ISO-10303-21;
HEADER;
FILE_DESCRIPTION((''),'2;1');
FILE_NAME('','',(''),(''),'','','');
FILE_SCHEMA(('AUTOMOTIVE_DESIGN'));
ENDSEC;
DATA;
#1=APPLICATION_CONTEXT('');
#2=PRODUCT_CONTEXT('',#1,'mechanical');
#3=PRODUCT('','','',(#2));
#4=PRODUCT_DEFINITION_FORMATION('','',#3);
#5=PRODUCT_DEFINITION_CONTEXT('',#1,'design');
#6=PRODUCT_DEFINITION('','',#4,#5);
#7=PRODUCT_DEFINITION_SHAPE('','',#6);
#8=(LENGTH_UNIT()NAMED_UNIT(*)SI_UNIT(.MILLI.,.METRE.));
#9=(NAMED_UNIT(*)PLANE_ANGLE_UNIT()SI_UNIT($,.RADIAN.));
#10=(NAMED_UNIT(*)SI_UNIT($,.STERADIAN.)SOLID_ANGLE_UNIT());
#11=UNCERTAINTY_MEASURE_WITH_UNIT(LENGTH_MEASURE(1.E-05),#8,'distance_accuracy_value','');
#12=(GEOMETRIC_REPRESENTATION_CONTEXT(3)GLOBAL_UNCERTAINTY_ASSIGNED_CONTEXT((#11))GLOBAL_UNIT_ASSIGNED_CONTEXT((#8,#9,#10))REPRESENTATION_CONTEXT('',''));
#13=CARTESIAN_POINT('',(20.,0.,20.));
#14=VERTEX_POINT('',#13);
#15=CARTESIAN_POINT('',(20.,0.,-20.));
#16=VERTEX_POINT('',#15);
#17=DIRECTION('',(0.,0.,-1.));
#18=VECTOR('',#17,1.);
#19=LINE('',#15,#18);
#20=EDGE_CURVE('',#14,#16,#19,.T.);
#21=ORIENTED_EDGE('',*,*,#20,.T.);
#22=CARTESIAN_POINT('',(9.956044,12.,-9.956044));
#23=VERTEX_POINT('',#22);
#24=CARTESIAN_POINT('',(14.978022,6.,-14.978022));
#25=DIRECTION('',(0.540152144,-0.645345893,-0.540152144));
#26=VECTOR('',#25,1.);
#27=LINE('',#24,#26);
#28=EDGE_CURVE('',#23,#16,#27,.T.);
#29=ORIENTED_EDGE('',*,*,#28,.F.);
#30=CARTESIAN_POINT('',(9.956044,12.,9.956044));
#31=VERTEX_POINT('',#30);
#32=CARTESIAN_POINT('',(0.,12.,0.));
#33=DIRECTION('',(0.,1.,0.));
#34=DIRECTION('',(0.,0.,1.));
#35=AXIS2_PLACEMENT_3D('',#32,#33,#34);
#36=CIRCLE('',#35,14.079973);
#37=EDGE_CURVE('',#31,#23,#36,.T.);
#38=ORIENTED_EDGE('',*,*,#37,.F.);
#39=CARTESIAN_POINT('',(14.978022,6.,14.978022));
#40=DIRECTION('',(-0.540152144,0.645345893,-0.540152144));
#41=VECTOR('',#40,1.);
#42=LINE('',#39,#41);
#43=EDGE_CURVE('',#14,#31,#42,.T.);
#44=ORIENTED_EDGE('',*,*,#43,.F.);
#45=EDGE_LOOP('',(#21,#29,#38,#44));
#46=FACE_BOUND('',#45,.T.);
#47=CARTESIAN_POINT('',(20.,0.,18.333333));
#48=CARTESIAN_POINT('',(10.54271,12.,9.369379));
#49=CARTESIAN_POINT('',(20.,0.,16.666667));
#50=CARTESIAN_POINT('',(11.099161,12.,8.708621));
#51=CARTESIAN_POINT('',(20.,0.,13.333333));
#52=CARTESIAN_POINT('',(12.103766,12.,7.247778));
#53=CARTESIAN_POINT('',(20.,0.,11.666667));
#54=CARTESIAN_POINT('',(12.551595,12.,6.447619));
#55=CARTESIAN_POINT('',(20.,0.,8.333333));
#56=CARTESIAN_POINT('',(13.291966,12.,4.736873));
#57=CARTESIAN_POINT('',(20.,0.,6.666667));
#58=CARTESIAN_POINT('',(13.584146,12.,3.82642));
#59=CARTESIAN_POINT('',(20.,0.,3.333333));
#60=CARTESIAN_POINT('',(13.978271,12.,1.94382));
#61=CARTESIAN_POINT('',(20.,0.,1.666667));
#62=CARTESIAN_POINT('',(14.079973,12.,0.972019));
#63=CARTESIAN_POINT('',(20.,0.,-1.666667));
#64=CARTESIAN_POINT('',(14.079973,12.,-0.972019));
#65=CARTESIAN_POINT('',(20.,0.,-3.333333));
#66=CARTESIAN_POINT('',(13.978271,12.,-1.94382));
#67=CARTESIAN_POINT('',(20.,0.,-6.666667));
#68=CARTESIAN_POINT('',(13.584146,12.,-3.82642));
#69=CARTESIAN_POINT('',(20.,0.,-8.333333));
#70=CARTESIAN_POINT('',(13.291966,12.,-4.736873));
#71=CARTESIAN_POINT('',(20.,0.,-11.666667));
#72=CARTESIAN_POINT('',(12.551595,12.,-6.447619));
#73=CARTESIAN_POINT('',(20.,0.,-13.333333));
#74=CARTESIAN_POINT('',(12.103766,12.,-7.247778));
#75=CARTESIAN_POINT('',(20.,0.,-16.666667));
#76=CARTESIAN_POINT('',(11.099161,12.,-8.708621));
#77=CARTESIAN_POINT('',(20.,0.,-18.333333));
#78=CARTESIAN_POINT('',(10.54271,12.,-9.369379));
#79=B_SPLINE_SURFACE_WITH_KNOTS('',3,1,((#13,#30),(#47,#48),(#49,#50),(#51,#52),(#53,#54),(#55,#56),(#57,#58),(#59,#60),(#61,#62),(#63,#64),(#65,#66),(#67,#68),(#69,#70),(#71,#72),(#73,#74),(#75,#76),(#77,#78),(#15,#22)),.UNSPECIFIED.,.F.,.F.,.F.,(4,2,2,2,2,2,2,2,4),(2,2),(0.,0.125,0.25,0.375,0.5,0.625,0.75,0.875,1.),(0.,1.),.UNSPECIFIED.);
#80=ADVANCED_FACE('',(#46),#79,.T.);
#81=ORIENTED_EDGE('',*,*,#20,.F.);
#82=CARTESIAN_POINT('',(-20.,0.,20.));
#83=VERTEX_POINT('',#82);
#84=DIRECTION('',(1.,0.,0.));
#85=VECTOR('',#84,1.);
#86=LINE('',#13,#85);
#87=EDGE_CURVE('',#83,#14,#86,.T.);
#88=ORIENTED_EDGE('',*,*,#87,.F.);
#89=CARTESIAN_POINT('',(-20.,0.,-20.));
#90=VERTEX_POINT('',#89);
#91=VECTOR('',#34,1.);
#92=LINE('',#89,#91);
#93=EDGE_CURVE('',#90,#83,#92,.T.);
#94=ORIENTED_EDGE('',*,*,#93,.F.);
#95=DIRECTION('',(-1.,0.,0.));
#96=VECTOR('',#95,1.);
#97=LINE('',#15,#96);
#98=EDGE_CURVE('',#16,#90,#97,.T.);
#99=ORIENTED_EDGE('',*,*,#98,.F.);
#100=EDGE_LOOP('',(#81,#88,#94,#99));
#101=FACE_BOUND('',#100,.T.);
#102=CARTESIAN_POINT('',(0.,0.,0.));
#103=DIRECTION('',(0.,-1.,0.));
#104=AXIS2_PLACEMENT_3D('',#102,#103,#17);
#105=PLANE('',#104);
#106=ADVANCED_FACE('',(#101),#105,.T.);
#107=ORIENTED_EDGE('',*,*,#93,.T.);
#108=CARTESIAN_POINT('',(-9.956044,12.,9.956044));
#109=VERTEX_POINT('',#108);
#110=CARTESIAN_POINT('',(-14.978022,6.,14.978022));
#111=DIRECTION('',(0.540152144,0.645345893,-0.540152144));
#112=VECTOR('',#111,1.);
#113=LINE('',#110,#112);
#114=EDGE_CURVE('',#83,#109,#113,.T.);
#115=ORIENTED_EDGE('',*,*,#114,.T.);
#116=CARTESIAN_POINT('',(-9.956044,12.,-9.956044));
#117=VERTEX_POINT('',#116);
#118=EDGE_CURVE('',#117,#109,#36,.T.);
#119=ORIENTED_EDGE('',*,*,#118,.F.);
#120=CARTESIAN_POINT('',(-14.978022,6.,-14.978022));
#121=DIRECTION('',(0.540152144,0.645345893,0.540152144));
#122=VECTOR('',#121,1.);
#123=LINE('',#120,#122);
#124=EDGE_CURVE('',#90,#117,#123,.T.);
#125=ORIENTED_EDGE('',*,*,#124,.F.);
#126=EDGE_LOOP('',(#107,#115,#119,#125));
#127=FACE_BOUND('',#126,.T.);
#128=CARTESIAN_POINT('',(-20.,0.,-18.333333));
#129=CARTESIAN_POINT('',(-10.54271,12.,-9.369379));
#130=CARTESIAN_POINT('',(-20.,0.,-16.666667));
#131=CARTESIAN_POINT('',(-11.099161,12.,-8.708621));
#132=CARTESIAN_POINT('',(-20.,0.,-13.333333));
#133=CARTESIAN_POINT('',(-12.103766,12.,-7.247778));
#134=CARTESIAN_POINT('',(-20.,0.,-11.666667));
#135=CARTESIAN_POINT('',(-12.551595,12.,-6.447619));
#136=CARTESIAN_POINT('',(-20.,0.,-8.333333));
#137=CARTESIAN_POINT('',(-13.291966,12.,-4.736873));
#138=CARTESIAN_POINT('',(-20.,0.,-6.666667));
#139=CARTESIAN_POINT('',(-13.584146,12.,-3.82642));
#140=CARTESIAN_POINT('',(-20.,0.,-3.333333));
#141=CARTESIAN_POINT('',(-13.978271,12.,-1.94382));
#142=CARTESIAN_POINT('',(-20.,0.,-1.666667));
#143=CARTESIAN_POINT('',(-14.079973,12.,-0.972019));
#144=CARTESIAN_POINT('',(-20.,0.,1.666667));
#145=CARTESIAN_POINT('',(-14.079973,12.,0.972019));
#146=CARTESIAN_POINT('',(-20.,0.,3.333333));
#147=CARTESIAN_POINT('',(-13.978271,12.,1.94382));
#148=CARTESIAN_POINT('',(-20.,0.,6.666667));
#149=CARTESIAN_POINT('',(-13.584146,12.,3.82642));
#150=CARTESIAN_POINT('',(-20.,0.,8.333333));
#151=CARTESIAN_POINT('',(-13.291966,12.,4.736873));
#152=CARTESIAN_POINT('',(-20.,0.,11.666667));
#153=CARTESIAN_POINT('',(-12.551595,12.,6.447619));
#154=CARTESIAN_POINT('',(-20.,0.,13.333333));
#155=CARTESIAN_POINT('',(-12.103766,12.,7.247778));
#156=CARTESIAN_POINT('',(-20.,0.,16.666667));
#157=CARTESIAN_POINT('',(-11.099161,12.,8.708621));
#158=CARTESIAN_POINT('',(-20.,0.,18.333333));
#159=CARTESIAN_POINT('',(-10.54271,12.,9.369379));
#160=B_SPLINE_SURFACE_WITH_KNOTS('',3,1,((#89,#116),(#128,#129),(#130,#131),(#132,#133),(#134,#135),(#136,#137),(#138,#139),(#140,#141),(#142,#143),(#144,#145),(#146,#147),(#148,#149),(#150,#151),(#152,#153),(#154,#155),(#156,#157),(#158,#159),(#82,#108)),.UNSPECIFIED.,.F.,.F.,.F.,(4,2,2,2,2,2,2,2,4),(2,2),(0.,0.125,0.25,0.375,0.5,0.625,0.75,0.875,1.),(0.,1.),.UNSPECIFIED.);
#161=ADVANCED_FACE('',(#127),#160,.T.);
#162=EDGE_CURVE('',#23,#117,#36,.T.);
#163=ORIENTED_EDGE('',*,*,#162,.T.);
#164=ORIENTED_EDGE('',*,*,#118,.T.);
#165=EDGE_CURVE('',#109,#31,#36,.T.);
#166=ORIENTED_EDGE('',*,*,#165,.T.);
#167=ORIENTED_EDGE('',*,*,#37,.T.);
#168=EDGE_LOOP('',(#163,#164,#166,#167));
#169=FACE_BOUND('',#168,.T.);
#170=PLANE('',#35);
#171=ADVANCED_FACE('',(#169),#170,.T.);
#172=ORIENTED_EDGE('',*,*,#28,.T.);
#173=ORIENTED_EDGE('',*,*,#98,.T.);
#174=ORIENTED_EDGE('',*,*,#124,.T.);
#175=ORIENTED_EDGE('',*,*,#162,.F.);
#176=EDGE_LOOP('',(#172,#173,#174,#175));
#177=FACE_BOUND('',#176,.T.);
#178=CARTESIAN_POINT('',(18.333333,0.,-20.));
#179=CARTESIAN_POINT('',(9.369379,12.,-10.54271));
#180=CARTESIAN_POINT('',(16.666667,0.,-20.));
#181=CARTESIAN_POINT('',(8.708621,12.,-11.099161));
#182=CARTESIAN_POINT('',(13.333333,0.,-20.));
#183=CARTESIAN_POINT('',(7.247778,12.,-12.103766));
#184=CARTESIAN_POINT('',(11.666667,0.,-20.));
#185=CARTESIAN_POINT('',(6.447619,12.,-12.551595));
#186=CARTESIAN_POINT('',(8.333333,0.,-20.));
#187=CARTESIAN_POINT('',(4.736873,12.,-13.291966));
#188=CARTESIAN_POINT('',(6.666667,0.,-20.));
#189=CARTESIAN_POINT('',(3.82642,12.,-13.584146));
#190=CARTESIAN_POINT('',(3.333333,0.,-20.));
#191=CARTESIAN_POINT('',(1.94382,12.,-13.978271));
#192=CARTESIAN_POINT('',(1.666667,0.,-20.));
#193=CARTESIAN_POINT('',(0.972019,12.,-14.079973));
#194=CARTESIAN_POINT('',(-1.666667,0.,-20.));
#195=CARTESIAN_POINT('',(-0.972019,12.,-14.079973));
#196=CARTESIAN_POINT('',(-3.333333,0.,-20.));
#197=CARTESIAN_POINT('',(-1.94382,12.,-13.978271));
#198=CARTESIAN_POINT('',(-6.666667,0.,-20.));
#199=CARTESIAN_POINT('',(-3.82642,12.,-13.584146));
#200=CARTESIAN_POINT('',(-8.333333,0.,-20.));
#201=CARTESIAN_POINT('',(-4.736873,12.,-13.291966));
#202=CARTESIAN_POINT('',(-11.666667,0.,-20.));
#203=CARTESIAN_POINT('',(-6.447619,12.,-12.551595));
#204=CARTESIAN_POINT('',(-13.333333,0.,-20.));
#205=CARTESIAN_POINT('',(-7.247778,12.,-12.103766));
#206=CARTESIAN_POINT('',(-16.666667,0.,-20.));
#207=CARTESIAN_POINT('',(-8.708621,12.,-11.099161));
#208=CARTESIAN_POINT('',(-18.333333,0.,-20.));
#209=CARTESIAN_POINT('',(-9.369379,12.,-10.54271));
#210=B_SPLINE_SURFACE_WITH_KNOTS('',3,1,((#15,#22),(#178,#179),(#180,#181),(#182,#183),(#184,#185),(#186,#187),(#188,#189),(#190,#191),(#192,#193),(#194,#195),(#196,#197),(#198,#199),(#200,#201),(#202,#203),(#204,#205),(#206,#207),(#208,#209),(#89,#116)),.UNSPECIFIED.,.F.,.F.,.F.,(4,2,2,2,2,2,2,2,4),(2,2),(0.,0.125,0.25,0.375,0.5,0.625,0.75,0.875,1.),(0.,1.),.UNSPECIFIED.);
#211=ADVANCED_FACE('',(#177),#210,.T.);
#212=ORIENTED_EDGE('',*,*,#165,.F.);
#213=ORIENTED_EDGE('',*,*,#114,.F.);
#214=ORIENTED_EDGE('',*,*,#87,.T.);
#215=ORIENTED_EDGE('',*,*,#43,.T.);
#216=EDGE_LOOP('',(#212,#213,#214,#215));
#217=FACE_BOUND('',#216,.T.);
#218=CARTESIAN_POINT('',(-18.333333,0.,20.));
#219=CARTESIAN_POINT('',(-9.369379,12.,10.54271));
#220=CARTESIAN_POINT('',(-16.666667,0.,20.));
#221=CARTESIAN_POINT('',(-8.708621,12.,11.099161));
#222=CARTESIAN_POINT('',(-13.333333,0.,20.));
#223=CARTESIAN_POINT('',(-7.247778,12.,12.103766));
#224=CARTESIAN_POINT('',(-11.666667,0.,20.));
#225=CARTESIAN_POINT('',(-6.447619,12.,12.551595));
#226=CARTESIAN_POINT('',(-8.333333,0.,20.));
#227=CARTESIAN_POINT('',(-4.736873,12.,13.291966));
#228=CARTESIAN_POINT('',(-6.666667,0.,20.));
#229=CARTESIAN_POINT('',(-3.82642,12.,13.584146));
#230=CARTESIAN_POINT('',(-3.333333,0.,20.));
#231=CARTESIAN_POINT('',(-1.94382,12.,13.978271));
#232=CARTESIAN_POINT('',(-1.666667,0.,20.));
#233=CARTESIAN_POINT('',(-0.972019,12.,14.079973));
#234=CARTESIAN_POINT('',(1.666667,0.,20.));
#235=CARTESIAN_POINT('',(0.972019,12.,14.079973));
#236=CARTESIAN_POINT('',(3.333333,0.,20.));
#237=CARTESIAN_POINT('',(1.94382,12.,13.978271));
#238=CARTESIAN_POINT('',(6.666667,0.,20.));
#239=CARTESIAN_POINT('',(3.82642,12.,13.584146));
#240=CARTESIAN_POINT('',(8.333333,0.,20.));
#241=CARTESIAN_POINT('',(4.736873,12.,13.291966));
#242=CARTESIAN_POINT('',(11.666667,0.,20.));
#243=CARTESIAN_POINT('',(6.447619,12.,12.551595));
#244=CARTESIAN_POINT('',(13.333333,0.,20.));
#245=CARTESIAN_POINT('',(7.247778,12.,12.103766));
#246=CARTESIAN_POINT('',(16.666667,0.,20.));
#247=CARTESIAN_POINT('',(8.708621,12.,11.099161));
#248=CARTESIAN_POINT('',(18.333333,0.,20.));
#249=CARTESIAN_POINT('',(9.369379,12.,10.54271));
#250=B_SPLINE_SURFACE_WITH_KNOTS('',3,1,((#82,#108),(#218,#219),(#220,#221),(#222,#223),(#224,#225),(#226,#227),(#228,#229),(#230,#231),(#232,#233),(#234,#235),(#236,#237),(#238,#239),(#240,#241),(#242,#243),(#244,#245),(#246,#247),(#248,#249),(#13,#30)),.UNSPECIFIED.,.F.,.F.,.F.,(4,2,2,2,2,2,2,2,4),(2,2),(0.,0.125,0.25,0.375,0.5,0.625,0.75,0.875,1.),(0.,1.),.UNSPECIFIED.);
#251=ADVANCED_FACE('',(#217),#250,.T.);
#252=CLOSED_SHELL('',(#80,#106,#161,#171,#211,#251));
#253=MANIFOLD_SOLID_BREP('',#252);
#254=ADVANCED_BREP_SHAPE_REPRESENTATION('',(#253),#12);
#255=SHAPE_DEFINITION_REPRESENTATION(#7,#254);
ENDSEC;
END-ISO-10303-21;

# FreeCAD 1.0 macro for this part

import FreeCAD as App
import Part
import Sketcher
from FreeCAD import Vector

doc = App.newDocument("Part")
body = doc.addObject("PartDesign::Body", "Body")

# Sketch on XZ plane
sketch1 = doc.addObject("Sketcher::SketchObject", "Sketch")
body.addObject(sketch1)
sketch1.AttachmentSupport = (doc.XZ_Plane, [""])
sketch1.MapMode = "FlatFace"
sketch1.addGeometry(Part.LineSegment(Vector(20, -20, 0), Vector(-20, -20, 0)), False)
sketch1.addGeometry(Part.LineSegment(Vector(-20, -20, 0), Vector(-20, 20, 0)), False)
sketch1.addGeometry(Part.LineSegment(Vector(-20, 20, 0), Vector(20, 20, 0)), False)
sketch1.addGeometry(Part.LineSegment(Vector(20, 20, 0), Vector(20, -20, 0)), False)
sketch1.addConstraint(Sketcher.Constraint("Coincident", 0, 2, 1, 1))
sketch1.addConstraint(Sketcher.Constraint("Coincident", 1, 2, 2, 1))
sketch1.addConstraint(Sketcher.Constraint("Coincident", 2, 2, 3, 1))
sketch1.addConstraint(Sketcher.Constraint("Coincident", 3, 2, 0, 1))
sketch1.addConstraint(Sketcher.Constraint("Horizontal", 0))
sketch1.addConstraint(Sketcher.Constraint("Vertical", 1))
sketch1.addConstraint(Sketcher.Constraint("Horizontal", 2))
sketch1.addConstraint(Sketcher.Constraint("Vertical", 3))
sketch1.addConstraint(Sketcher.Constraint("Symmetric", 0, 2, 2, 2, -1, 1))
sketch1.addConstraint(Sketcher.Constraint("Equal", 2, 1))
sketch1.addConstraint(Sketcher.Constraint("DistanceX", 0, 2, 0, 1, 40.0))

# Sketch on XZ plane
sketch2 = doc.addObject("Sketcher::SketchObject", "Sketch001")
body.addObject(sketch2)
sketch2.AttachmentSupport = (doc.XZ_Plane, [""])
sketch2.MapMode = "FlatFace"
sketch2.AttachmentOffset = App.Placement(Vector(0, 0, -12), App.Rotation())
sketch2.addGeometry(Part.BSplineCurve([Vector(9.956044, 9.956044, 0), Vector(12.772039, 7.14005, 0), Vector(15.184224, 2.6659, 0), Vector(15.184224, -2.6659, 0), Vector(12.772039, -7.14005, 0), Vector(7.14005, -12.772039, 0), Vector(2.6659, -15.184224, 0), Vector(-2.6659, -15.184224, 0), Vector(-7.14005, -12.772039, 0), Vector(-12.772039, -7.14005, 0), Vector(-15.184224, -2.6659, 0), Vector(-15.184224, 2.6659, 0), Vector(-12.772039, 7.14005, 0), Vector(-7.14005, 12.772039, 0), Vector(-2.6659, 15.184224, 0), Vector(2.6659, 15.184224, 0), Vector(7.14005, 12.772039, 0), Vector(9.956044, 9.956044, 0)], [6, 4, 4, 4, 6], [0, 1, 2, 3, 4], False, 5, [1, 1, 0.965685425, 0.965685425, 1, 1, 0.965685425, 0.965685425, 1, 1, 0.965685425, 0.965685425, 1, 1, 0.965685425, 0.965685425, 1, 1], False), False)
sketch2.addConstraint(Sketcher.Constraint("Block", 0))

additiveloft = doc.addObject("PartDesign::AdditiveLoft", "AdditiveLoft")
body.addObject(additiveloft)
additiveloft.Profile = sketch1
additiveloft.Sections = [sketch2]

doc.recompute()
